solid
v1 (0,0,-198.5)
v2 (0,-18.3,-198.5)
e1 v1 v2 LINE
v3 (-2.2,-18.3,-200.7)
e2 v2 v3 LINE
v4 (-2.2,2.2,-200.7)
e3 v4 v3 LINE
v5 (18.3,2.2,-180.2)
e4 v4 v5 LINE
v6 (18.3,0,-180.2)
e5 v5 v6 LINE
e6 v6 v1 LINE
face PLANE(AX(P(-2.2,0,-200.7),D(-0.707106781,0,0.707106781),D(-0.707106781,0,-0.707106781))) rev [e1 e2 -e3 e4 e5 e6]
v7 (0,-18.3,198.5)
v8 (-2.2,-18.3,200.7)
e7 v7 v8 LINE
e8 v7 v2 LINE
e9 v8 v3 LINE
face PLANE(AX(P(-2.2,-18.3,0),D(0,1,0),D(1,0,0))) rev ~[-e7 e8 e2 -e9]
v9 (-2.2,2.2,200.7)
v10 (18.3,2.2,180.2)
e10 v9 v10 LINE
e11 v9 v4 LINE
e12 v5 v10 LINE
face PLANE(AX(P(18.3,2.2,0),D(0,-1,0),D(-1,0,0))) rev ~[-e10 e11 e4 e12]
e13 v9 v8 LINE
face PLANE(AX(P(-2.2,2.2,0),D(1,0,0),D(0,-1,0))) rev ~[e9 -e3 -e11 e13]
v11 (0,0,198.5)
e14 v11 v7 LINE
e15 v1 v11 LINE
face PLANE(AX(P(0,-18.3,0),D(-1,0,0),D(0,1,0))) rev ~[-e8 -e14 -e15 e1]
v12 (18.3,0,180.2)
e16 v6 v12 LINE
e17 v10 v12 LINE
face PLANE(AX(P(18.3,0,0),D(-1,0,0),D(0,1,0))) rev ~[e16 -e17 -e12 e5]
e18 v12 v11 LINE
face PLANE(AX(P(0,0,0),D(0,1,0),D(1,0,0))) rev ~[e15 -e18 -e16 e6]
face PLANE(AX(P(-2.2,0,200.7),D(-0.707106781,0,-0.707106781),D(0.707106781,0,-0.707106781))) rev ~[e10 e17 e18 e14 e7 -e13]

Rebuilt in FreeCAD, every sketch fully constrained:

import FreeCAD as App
import Part
import Sketcher
Q = App.Units.Quantity


def add_polygon(sketch, points):
    """Adds a closed chain of lines whose ends are joined by coincident constraints."""
    first, n = sketch.GeometryCount, len(points)
    for a, b in zip(points, points[1:] + points[:1]):
        sketch.addGeometry(Part.LineSegment(App.Vector(*a, 0), App.Vector(*b, 0)), False)
    for i in range(n):
        sketch.addConstraint(Sketcher.Constraint("Coincident", first + i, 2, first + (i + 1) % n, 1))

doc = App.newDocument("Part")
body = doc.addObject("PartDesign::Body", "Body")

# Sketch on XY plane
sketch1 = doc.addObject("Sketcher::SketchObject", "Sketch")
body.addObject(sketch1)
sketch1.AttachmentSupport = (doc.XY_Plane, [""])
sketch1.MapMode = "FlatFace"
add_polygon(sketch1, [(0, -18.3), (0, 0), (18.3, 0), (18.3, 2.2), (-2.2, 2.2), (-2.2, -18.3)])  # lines 0-5
sketch1.addConstraint([
    Sketcher.Constraint("Vertical", 0),
    Sketcher.Constraint("Horizontal", 1),
    Sketcher.Constraint("Vertical", 2),
    Sketcher.Constraint("Horizontal", 3),
    Sketcher.Constraint("Vertical", 4),
    Sketcher.Constraint("Horizontal", 5),
    Sketcher.Constraint("Coincident", 0, 2, -1, 1),
    Sketcher.Constraint("Equal", 1, 0),
    Sketcher.Constraint("Equal", 5, 2),
    Sketcher.Constraint("DistanceX", 3, 2, 3, 1, Q("20.5 mm")),
    Sketcher.Constraint("DistanceX", 5, 1, 5, 2, Q("2.2 mm")),
])
pad1 = doc.addObject("PartDesign::Pad", "Pad")
body.addObject(pad1)
pad1.Profile = sketch1
pad1.Length = 401.4
pad1.Midplane = True

# Sketch on XZ plane
sketch2 = doc.addObject("Sketcher::SketchObject", "Sketch001")
body.addObject(sketch2)
sketch2.AttachmentSupport = (doc.XZ_Plane, [""])
sketch2.MapMode = "FlatFace"
add_polygon(sketch2, [(18, 180), (-2, 201), (18, 201)])  # lines 0-2
sketch2.addConstraint([
    Sketcher.Constraint("Horizontal", 1),
    Sketcher.Constraint("Vertical", 2),
    Sketcher.Constraint("Equal", 1, 2),
    Sketcher.Constraint("DistanceX", 1, 1, 1, 2, Q("20.5 mm")),
    Sketcher.Constraint("DistanceX", 0, 2, -1, 1, Q("2.2 mm")),
    Sketcher.Constraint("DistanceY", -1, 1, 0, 2, Q("200.7 mm")),
])
pocket1 = doc.addObject("PartDesign::Pocket", "Pocket")
body.addObject(pocket1)
pocket1.Profile = sketch2
pocket1.Type = "ThroughAll"
pocket1.Midplane = True
doc.recompute()

mirrored = doc.addObject("PartDesign::Mirrored", "Mirrored")
body.addObject(mirrored)
mirrored.Originals = [pocket1]
mirrored.MirrorPlane = (doc.XY_Plane, [""])
body.Tip = mirrored

doc.recompute()
